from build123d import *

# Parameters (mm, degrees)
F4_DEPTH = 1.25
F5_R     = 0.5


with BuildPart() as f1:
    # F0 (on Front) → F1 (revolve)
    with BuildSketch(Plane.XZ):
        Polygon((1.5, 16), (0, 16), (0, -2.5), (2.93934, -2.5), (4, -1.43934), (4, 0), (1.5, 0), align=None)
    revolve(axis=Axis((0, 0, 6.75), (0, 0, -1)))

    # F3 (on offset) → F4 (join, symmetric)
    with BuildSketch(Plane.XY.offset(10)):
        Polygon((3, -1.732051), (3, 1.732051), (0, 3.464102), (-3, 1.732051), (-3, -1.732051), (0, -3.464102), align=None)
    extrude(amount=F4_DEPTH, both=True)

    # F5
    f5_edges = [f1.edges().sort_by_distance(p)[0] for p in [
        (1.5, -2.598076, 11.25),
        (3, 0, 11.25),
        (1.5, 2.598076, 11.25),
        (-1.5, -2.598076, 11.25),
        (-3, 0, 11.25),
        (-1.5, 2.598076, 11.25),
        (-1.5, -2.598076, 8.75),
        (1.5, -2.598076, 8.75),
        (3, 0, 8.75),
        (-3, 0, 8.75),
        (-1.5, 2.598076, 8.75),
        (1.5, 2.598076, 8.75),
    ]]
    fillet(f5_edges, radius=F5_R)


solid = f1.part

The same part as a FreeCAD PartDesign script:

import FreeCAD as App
import Part
import Sketcher

V = App.Vector
Q = App.Units.Quantity


def edges_at(feature, points):
    """Names of the edges that pass closest to the given points."""
    edges = feature.Shape.Edges
    near = lambda p: min(range(len(edges)), key=lambda i: edges[i].distToShape(Part.Vertex(*p))[0])
    return sorted({f"Edge{near(p) + 1}" for p in points})


def add_polygon(sketch, points):
    """Adds a closed chain of lines whose ends are joined by coincident constraints."""
    first, n = sketch.GeometryCount, len(points)
    for a, b in zip(points, points[1:] + points[:1]):
        sketch.addGeometry(Part.LineSegment(App.Vector(*a, 0), App.Vector(*b, 0)), False)
    for i in range(n):
        sketch.addConstraint(Sketcher.Constraint("Coincident", first + i, 2, first + (i + 1) % n, 1))

doc = App.newDocument("Part")
params = doc.addObject("Spreadsheet::Sheet", "Params")
for row, (alias, value) in enumerate([
    ("sketch1_height", "16 mm"),
    ("sketch1_width", "1.5 mm"),
    ("sketch1_width2", "2.5 mm"),
    ("sketch1_height2", "18.5 mm"),
    ("sketch1_length", "1.5 mm"),
    ("revolution_angle", "360 deg"),
    ("pad1_length", "2.5 mm"),
    ("fillet_radius", "0.5 mm"),
], start=1):
    params.set(f"A{row}", alias)
    params.set(f"B{row}", "=" + value)
    params.setAlias(f"B{row}", alias)

body = doc.addObject("PartDesign::Body", "Body")

# Sketch on XZ plane
sketch1 = body.newObject("Sketcher::SketchObject", "Sketch")
sketch1.AttachmentSupport = (doc.getObject("XZ_Plane"), [""])
sketch1.MapMode = "FlatFace"
add_polygon(sketch1, [(1.5, 16), (0, 16), (0, -2.5), (2.93934, -2.5), (4, -1.43934), (4, 0), (1.5, 0)])  # lines 0-6
sketch1.addConstraint(Sketcher.Constraint("Horizontal", 0))
sketch1.addConstraint(Sketcher.Constraint("Vertical", 1))
sketch1.addConstraint(Sketcher.Constraint("Horizontal", 2))
sketch1.addConstraint(Sketcher.Constraint("Vertical", 4))
sketch1.addConstraint(Sketcher.Constraint("Horizontal", 5))
sketch1.addConstraint(Sketcher.Constraint("Vertical", 6))
sketch1.addConstraint(Sketcher.Constraint("PointOnObject", 0, 2, -2))
sketch1.addConstraint(Sketcher.Constraint("PointOnObject", 4, 2, -1))
sketch1.addConstraint(Sketcher.Constraint("DistanceY", 6, 1, 6, 2, Q("16 mm")))
sketch1.addConstraint(Sketcher.Constraint("Angle", 3, Q("45 deg")))
sketch1.addConstraint(Sketcher.Constraint("DistanceX", 0, 2, 0, 1, Q("1.5 mm")))
sketch1.addConstraint(Sketcher.Constraint("DistanceX", 5, 2, 5, 1, Q("2.5 mm")))
sketch1.addConstraint(Sketcher.Constraint("DistanceY", 1, 2, 1, 1, Q("18.5 mm")))
sketch1.addConstraint(Sketcher.Constraint("Distance", 3, Q("1.5 mm")))
sketch1.setExpression("Constraints[15]", "Params.sketch1_height")
sketch1.setExpression("Constraints[17]", "Params.sketch1_width")
sketch1.setExpression("Constraints[18]", "Params.sketch1_width2")
sketch1.setExpression("Constraints[19]", "Params.sketch1_height2")
sketch1.setExpression("Constraints[20]", "Params.sketch1_length")
revolution = body.newObject("PartDesign::Revolution", "Revolution")
revolution.Profile = sketch1
revolution.ReferenceAxis = (sketch1, ["V_Axis"])
revolution.setExpression("Angle", "Params.revolution_angle")

# Sketch on XY plane
sketch2 = body.newObject("Sketcher::SketchObject", "Sketch001")
sketch2.AttachmentSupport = (doc.getObject("XY_Plane"), [""])
sketch2.MapMode = "FlatFace"
sketch2.AttachmentOffset = App.Placement(V(0, 0, 10), App.Rotation())
add_polygon(sketch2, [(3, -1.732051), (3, 1.732051), (0, 3.464102), (-3, 1.732051), (-3, -1.732051), (0, -3.464102)])  # lines 0-5
sketch2.addConstraint(Sketcher.Constraint("Vertical", 0))
sketch2.addConstraint(Sketcher.Constraint("Vertical", 3))
sketch2.addConstraint(Sketcher.Constraint("Symmetric", 0, 2, 3, 2, -1, 1))
sketch2.addConstraint(Sketcher.Constraint("Symmetric", 1, 2, 4, 2, -1, 1))
sketch2.addConstraint(Sketcher.Constraint("PointOnObject", 1, 2, -2))
sketch2.addConstraint(Sketcher.Constraint("Parallel", 2, 5))
sketch2.addConstraint(Sketcher.Constraint("Horizontal", 0, 2, 2, 2))
sketch2.addConstraint(Sketcher.Constraint("Angle", 1, Q("149.999997 deg")))
sketch2.addConstraint(Sketcher.Constraint("DistanceX", -1, 1, 0, 2, Q("3 mm")))
sketch2.addConstraint(Sketcher.Constraint("DistanceY", 0, 1, 0, 2, Q("3.464102 mm")))
pad1 = body.newObject("PartDesign::Pad", "Pad")
pad1.Profile = sketch2
pad1.setExpression("Length", "Params.pad1_length")
pad1.Midplane = True
doc.recompute()

fillet = body.newObject("PartDesign::Fillet", "Fillet")
fillet.Base = (pad1, edges_at(pad1, [
    (1.5, -2.598, 11.25),
    (3, 0, 11.25),
    (1.5, 2.598, 11.25),
    (-1.5, -2.598, 11.25),
    (-3, 0, 11.25),
    (-1.5, 2.598, 11.25),
    (-1.5, -2.598, 8.75),
    (1.5, -2.598, 8.75),
    (3, 0, 8.75),
    (-3, 0, 8.75),
    (-1.5, 2.598, 8.75),
    (1.5, 2.598, 8.75),
]))
fillet.setExpression("Radius", "Params.fillet_radius")

doc.recompute()
